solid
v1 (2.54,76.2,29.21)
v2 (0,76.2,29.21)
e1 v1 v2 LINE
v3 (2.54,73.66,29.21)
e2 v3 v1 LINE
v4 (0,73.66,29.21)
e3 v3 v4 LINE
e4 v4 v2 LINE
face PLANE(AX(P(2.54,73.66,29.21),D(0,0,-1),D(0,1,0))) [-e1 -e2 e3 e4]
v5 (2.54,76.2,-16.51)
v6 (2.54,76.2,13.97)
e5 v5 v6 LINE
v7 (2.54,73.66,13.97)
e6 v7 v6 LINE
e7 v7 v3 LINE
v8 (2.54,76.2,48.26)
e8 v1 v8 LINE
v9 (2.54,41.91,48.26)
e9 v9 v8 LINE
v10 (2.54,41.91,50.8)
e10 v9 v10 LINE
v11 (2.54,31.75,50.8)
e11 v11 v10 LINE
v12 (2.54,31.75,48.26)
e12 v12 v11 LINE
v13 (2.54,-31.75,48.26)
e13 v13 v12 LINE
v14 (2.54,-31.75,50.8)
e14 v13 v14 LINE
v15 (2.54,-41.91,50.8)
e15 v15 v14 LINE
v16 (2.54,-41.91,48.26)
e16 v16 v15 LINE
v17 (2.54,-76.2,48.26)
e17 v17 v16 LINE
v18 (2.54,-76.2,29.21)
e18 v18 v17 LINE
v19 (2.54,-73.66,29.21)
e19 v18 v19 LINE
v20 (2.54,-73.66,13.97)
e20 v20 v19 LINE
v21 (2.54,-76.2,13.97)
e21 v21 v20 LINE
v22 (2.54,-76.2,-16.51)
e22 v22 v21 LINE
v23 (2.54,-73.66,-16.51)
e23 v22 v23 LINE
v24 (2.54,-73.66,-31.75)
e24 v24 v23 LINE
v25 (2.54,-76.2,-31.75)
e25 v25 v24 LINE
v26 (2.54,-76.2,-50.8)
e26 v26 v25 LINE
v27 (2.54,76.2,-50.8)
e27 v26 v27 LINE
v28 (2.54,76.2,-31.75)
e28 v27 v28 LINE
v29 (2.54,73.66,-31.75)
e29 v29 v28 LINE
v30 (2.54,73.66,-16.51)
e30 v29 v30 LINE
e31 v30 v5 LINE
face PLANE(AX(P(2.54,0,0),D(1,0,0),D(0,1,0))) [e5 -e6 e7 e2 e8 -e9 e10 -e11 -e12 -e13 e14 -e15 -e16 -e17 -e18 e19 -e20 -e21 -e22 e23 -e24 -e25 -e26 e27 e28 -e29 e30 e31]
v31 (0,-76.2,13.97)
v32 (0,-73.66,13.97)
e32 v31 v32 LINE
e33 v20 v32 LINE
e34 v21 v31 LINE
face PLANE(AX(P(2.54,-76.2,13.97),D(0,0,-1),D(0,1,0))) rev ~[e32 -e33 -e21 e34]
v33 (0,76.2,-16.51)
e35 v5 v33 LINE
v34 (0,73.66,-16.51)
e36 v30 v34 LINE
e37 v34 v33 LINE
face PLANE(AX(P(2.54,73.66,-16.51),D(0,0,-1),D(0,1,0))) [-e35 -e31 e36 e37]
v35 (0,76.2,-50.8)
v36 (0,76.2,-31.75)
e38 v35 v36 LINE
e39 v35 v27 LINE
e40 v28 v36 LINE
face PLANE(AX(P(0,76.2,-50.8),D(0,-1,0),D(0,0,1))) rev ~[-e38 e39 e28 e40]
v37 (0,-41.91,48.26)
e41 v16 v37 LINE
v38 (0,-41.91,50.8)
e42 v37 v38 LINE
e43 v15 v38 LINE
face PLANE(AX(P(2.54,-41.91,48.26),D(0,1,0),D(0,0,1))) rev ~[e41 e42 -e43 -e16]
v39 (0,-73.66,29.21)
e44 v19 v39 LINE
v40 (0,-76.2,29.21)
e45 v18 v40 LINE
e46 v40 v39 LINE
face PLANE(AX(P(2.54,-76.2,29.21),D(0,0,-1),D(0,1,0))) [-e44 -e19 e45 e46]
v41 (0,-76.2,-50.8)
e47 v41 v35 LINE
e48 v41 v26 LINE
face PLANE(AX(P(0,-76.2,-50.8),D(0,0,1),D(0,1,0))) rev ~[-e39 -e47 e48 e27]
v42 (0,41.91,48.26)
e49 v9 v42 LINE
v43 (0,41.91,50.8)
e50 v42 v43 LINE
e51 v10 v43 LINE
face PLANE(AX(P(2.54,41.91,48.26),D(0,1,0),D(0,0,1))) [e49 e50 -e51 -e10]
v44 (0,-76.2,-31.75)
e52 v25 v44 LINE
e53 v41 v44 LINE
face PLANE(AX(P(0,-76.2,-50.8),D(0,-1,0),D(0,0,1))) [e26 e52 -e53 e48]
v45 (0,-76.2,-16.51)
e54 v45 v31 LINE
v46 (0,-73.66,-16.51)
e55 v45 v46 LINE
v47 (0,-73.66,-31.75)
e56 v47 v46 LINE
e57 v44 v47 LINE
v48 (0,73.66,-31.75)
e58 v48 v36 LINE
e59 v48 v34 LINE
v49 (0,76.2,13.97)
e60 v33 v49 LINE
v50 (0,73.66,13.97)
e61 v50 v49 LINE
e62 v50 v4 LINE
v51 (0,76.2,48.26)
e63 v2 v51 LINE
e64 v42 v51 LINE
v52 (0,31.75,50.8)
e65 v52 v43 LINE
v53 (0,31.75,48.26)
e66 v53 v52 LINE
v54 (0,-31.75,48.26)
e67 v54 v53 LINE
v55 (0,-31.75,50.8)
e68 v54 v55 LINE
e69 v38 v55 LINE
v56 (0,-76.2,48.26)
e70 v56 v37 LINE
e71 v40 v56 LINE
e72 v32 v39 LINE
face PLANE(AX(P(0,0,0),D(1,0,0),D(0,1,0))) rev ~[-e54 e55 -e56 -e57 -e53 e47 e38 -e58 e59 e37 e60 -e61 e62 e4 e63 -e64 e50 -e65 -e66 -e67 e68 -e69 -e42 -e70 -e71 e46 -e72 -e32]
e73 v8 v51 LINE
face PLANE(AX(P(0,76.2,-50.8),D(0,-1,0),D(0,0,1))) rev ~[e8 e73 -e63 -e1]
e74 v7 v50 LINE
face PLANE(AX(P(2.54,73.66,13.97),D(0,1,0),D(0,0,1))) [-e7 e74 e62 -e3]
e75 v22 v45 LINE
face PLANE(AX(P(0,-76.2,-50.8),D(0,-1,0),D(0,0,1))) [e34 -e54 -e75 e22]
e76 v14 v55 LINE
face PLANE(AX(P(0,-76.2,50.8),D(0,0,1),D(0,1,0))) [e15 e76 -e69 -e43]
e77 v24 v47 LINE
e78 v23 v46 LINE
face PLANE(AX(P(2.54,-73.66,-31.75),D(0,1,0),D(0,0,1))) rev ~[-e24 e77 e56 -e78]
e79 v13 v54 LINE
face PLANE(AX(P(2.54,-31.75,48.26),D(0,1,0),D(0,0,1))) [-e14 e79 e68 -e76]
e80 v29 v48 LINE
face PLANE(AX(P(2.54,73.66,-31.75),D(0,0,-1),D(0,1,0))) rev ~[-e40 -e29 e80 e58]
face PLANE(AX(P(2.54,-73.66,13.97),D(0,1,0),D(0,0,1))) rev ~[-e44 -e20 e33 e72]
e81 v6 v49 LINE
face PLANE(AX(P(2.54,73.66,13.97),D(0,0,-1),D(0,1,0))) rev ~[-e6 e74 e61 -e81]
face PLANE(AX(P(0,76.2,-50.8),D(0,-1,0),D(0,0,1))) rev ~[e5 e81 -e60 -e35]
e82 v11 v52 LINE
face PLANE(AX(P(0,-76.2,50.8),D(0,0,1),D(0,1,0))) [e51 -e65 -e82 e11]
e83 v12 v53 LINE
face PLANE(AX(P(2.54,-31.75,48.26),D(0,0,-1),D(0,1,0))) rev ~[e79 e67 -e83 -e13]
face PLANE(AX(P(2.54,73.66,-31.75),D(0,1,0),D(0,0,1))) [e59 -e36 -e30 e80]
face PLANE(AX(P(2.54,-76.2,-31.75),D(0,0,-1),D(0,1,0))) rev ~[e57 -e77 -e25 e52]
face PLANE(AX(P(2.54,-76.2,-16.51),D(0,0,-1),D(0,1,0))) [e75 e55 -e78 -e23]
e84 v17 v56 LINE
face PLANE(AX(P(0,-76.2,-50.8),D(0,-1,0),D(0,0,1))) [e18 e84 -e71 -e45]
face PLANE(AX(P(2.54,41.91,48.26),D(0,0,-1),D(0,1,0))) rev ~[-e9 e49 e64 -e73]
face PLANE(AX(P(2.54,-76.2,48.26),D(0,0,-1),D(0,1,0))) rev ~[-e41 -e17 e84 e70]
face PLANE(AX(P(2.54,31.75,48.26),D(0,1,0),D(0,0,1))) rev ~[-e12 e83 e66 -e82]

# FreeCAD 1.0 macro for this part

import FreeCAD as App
import Part
import Sketcher
from FreeCAD import Vector
Q = App.Units.Quantity

doc = App.newDocument("Part")
body = doc.addObject("PartDesign::Body", "Body")

# Sketch on YZ plane
sketch1 = body.newObject("Sketcher::SketchObject", "Sketch")
sketch1.AttachmentSupport = (doc.getObject("YZ_Plane"), [""])
sketch1.MapMode = "FlatFace"
sketch1.addGeometry([
    Part.LineSegment(Vector(-76, 51, 0), Vector(-76, -51, 0)),
    Part.LineSegment(Vector(-76, -51, 0), Vector(76, -51, 0)),
    Part.LineSegment(Vector(76, -51, 0), Vector(76, 51, 0)),
    Part.LineSegment(Vector(76, 51, 0), Vector(-76, 51, 0)),
], False)
sketch1.addConstraint([
    Sketcher.Constraint("Coincident", 0, 2, 1, 1),
    Sketcher.Constraint("Coincident", 1, 2, 2, 1),
    Sketcher.Constraint("Coincident", 2, 2, 3, 1),
    Sketcher.Constraint("Coincident", 3, 2, 0, 1),
    Sketcher.Constraint("Vertical", 0),
    Sketcher.Constraint("Horizontal", 1),
    Sketcher.Constraint("Vertical", 2),
    Sketcher.Constraint("Horizontal", 3),
    Sketcher.Constraint("Symmetric", 0, 2, 2, 2, -1, 1),
    Sketcher.Constraint("DistanceX", 1, 1, 1, 2, Q("6 in")),
    Sketcher.Constraint("DistanceY", 0, 2, 0, 1, Q("4 in")),
])
pad1 = body.newObject("PartDesign::Pad", "Pad")
pad1.Profile = sketch1
pad1.Length = Q("0.1 in")

# Sketch on YZ plane
sketch2 = body.newObject("Sketcher::SketchObject", "Sketch001")
sketch2.AttachmentSupport = (doc.getObject("YZ_Plane"), [""])
sketch2.MapMode = "FlatFace"
sketch2.AttachmentOffset = App.Placement(Vector(0, 0, 0.1 * 25.4), App.Rotation())
sketch2.addGeometry([
    Part.LineSegment(Vector(-76.2, 50.8, 0), Vector(-76.2, 48.3, 0)),  # 0
    Part.LineSegment(Vector(-76.2, 48.3, 0), Vector(-41.9, 48.3, 0)),  # 1
    Part.LineSegment(Vector(-41.9, 48.3, 0), Vector(-41.9, 50.8, 0)),  # 2
    Part.LineSegment(Vector(-41.9, 50.8, 0), Vector(-76.2, 50.8, 0)),  # 3
    Part.LineSegment(Vector(-31.8, 50.8, 0), Vector(-31.8, 48.3, 0)),  # 4
    Part.LineSegment(Vector(-31.8, 48.3, 0), Vector(31.8, 48.3, 0)),  # 5
    Part.LineSegment(Vector(31.8, 48.3, 0), Vector(31.8, 50.8, 0)),  # 6
    Part.LineSegment(Vector(31.8, 50.8, 0), Vector(-31.8, 50.8, 0)),  # 7
    Part.LineSegment(Vector(41.9, 50.8, 0), Vector(41.9, 48.3, 0)),  # 8
    Part.LineSegment(Vector(41.9, 48.3, 0), Vector(76.2, 48.3, 0)),  # 9
    Part.LineSegment(Vector(76.2, 48.3, 0), Vector(76.2, 50.8, 0)),  # 10
    Part.LineSegment(Vector(76.2, 50.8, 0), Vector(41.9, 50.8, 0)),  # 11
], False)
sketch2.addConstraint([
    Sketcher.Constraint("Coincident", 0, 2, 1, 1),
    Sketcher.Constraint("Coincident", 1, 2, 2, 1),
    Sketcher.Constraint("Coincident", 2, 2, 3, 1),
    Sketcher.Constraint("Coincident", 3, 2, 0, 1),
    Sketcher.Constraint("Coincident", 4, 2, 5, 1),
    Sketcher.Constraint("Coincident", 5, 2, 6, 1),
    Sketcher.Constraint("Coincident", 6, 2, 7, 1),
    Sketcher.Constraint("Coincident", 7, 2, 4, 1),
    Sketcher.Constraint("Coincident", 8, 2, 9, 1),
    Sketcher.Constraint("Coincident", 9, 2, 10, 1),
    Sketcher.Constraint("Coincident", 10, 2, 11, 1),
    Sketcher.Constraint("Coincident", 11, 2, 8, 1),
    Sketcher.Constraint("Vertical", 0),
    Sketcher.Constraint("Horizontal", 1),
    Sketcher.Constraint("Vertical", 2),
    Sketcher.Constraint("Horizontal", 3),
    Sketcher.Constraint("Vertical", 4),
    Sketcher.Constraint("Horizontal", 5),
    Sketcher.Constraint("Vertical", 6),
    Sketcher.Constraint("Horizontal", 7),
    Sketcher.Constraint("Vertical", 8),
    Sketcher.Constraint("Horizontal", 9),
    Sketcher.Constraint("Vertical", 10),
    Sketcher.Constraint("Horizontal", 11),
    Sketcher.Constraint("Symmetric", 1, 2, 8, 2, -2),
    Sketcher.Constraint("Symmetric", 3, 2, 10, 2, -2),
    Sketcher.Constraint("Horizontal", 1, 2, 4, 2),
    Sketcher.Constraint("Horizontal", 3, 2, 6, 2),
    Sketcher.Constraint("DistanceX", 5, 1, 5, 2, Q("2.5 in")),
    Sketcher.Constraint("DistanceY", 0, 2, 0, 1, Q("0.1 in")),
    Sketcher.Constraint("DistanceX", 0, 2, -1, 1, Q("3 in")),
    Sketcher.Constraint("DistanceY", -1, 1, 2, 2, Q("2 in")),
    Sketcher.Constraint("DistanceX", 1, 1, 1, 2, Q("1.35 in")),
    Sketcher.Constraint("DistanceX", 1, 2, 4, 2, Q("0.4 in")),
])
pocket1 = body.newObject("PartDesign::Pocket", "Pocket")
pocket1.Profile = sketch2
pocket1.Length = Q("1 in")

# Sketch on YZ plane
sketch3 = body.newObject("Sketcher::SketchObject", "Sketch002")
sketch3.AttachmentSupport = (doc.getObject("YZ_Plane"), [""])
sketch3.MapMode = "FlatFace"
sketch3.AttachmentOffset = App.Placement(Vector(0, 0, 0.1 * 25.4), App.Rotation())
sketch3.addGeometry([
    Part.LineSegment(Vector(73.7, 29.2, 0), Vector(73.7, 14, 0)),  # 0
    Part.LineSegment(Vector(73.7, 14, 0), Vector(76.2, 14, 0)),  # 1
    Part.LineSegment(Vector(76.2, 14, 0), Vector(76.2, 29.2, 0)),  # 2
    Part.LineSegment(Vector(76.2, 29.2, 0), Vector(73.7, 29.2, 0)),  # 3
    Part.LineSegment(Vector(73.7, -16.5, 0), Vector(73.7, -31.8, 0)),  # 4
    Part.LineSegment(Vector(73.7, -31.8, 0), Vector(76.2, -31.8, 0)),  # 5
    Part.LineSegment(Vector(76.2, -31.8, 0), Vector(76.2, -16.5, 0)),  # 6
    Part.LineSegment(Vector(76.2, -16.5, 0), Vector(73.7, -16.5, 0)),  # 7
], False)
sketch3.addConstraint([
    Sketcher.Constraint("Coincident", 0, 2, 1, 1),
    Sketcher.Constraint("Coincident", 1, 2, 2, 1),
    Sketcher.Constraint("Coincident", 2, 2, 3, 1),
    Sketcher.Constraint("Coincident", 3, 2, 0, 1),
    Sketcher.Constraint("Coincident", 4, 2, 5, 1),
    Sketcher.Constraint("Coincident", 5, 2, 6, 1),
    Sketcher.Constraint("Coincident", 6, 2, 7, 1),
    Sketcher.Constraint("Coincident", 7, 2, 4, 1),
    Sketcher.Constraint("Vertical", 0),
    Sketcher.Constraint("Horizontal", 1),
    Sketcher.Constraint("Vertical", 2),
    Sketcher.Constraint("Horizontal", 3),
    Sketcher.Constraint("Vertical", 4),
    Sketcher.Constraint("Horizontal", 5),
    Sketcher.Constraint("Vertical", 6),
    Sketcher.Constraint("Horizontal", 7),
    Sketcher.Constraint("Vertical", 3, 2, 4, 2),
    Sketcher.Constraint("Vertical", 2, 2, 5, 2),
    Sketcher.Constraint("Equal", 2, 4),
    Sketcher.Constraint("DistanceX", 1, 1, 1, 2, Q("0.1 in")),
    Sketcher.Constraint("DistanceY", 0, 2, 0, 1, Q("0.6 in")),
    Sketcher.Constraint("DistanceX", -1, 1, 1, 2, Q("3 in")),
    Sketcher.Constraint("DistanceY", 4, 2, 0, 2, Q("1.8 in")),
    Sketcher.Constraint("DistanceY", -1, 1, 0, 2, Q("0.55 in")),
])
pocket2 = body.newObject("PartDesign::Pocket", "Pocket001")
pocket2.Profile = sketch3
pocket2.Length = Q("1 in")

# Sketch on YZ plane
sketch4 = body.newObject("Sketcher::SketchObject", "Sketch003")
sketch4.AttachmentSupport = (doc.getObject("YZ_Plane"), [""])
sketch4.MapMode = "FlatFace"
sketch4.AttachmentOffset = App.Placement(Vector(0, 0, 0.1 * 25.4), App.Rotation())
sketch4.addGeometry([
    Part.LineSegment(Vector(-76.2, 29.2, 0), Vector(-76.2, 14, 0)),  # 0
    Part.LineSegment(Vector(-76.2, 14, 0), Vector(-73.7, 14, 0)),  # 1
    Part.LineSegment(Vector(-73.7, 14, 0), Vector(-73.7, 29.2, 0)),  # 2
    Part.LineSegment(Vector(-73.7, 29.2, 0), Vector(-76.2, 29.2, 0)),  # 3
    Part.LineSegment(Vector(-76.2, -16.5, 0), Vector(-76.2, -31.8, 0)),  # 4
    Part.LineSegment(Vector(-76.2, -31.8, 0), Vector(-73.7, -31.8, 0)),  # 5
    Part.LineSegment(Vector(-73.7, -31.8, 0), Vector(-73.7, -16.5, 0)),  # 6
    Part.LineSegment(Vector(-73.7, -16.5, 0), Vector(-76.2, -16.5, 0)),  # 7
], False)
sketch4.addConstraint([
    Sketcher.Constraint("Coincident", 0, 2, 1, 1),
    Sketcher.Constraint("Coincident", 1, 2, 2, 1),
    Sketcher.Constraint("Coincident", 2, 2, 3, 1),
    Sketcher.Constraint("Coincident", 3, 2, 0, 1),
    Sketcher.Constraint("Coincident", 4, 2, 5, 1),
    Sketcher.Constraint("Coincident", 5, 2, 6, 1),
    Sketcher.Constraint("Coincident", 6, 2, 7, 1),
    Sketcher.Constraint("Coincident", 7, 2, 4, 1),
    Sketcher.Constraint("Vertical", 0),
    Sketcher.Constraint("Horizontal", 1),
    Sketcher.Constraint("Vertical", 2),
    Sketcher.Constraint("Horizontal", 3),
    Sketcher.Constraint("Vertical", 4),
    Sketcher.Constraint("Horizontal", 5),
    Sketcher.Constraint("Vertical", 6),
    Sketcher.Constraint("Horizontal", 7),
    Sketcher.Constraint("Vertical", 3, 2, 4, 2),
    Sketcher.Constraint("Vertical", 2, 2, 5, 2),
    Sketcher.Constraint("Equal", 2, 4),
    Sketcher.Constraint("DistanceX", 1, 1, 1, 2, Q("0.1 in")),
    Sketcher.Constraint("DistanceY", 0, 2, 0, 1, Q("0.6 in")),
    Sketcher.Constraint("DistanceX", 0, 2, -1, 1, Q("3 in")),
    Sketcher.Constraint("DistanceY", 4, 2, 0, 2, Q("1.8 in")),
    Sketcher.Constraint("DistanceY", -1, 1, 0, 2, Q("0.55 in")),
])
pocket3 = body.newObject("PartDesign::Pocket", "Pocket002")
pocket3.Profile = sketch4
pocket3.Length = Q("1 in")

doc.recompute()
